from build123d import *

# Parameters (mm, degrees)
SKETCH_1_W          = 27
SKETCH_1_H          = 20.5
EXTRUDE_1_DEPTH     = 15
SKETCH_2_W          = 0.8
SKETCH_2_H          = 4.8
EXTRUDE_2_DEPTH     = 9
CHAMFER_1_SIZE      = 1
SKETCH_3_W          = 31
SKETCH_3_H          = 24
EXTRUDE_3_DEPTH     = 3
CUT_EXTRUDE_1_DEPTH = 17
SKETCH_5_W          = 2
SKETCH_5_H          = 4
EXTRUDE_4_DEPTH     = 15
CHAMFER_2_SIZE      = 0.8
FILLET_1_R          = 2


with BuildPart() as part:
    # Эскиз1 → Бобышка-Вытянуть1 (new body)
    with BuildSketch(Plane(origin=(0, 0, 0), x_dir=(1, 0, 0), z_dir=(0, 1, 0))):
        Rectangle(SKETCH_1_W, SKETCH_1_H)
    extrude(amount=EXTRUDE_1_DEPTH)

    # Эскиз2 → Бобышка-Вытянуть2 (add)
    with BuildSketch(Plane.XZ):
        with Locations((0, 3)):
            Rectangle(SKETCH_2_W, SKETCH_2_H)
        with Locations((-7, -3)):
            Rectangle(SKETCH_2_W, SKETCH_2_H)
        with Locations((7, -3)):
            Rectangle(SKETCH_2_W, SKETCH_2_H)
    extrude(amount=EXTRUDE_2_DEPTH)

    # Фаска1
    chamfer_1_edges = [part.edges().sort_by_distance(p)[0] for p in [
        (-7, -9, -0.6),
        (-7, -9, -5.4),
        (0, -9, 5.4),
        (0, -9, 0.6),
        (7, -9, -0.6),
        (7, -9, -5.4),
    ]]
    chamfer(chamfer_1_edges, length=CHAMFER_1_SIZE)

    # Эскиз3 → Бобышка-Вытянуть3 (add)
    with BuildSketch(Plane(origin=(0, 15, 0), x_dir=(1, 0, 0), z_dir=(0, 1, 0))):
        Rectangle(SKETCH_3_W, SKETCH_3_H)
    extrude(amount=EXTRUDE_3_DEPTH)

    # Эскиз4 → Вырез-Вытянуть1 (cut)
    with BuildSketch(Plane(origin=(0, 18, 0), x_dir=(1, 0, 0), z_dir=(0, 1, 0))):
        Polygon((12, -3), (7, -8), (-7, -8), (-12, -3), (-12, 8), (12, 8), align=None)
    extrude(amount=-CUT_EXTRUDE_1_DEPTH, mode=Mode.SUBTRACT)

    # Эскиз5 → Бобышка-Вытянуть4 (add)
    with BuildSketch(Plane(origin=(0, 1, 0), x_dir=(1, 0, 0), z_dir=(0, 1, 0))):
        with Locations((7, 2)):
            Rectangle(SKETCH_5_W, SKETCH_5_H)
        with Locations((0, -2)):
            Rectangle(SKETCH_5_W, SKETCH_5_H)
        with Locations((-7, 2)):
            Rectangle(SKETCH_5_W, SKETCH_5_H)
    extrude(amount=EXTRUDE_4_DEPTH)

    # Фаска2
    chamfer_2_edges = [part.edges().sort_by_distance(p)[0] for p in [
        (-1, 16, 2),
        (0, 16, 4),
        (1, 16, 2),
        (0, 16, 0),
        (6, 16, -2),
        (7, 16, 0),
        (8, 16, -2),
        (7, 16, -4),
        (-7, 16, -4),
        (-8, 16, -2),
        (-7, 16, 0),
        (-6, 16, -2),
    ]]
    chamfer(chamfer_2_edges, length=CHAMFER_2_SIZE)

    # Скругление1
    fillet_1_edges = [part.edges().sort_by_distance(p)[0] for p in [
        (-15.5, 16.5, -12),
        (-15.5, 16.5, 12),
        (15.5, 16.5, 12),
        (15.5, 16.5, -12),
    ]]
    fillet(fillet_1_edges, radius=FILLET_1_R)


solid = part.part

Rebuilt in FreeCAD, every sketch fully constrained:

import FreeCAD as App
import Part
import Sketcher

V = App.Vector
Q = App.Units.Quantity


def edges_at(feature, points):
    """Names of the edges that pass closest to the given points."""
    edges = feature.Shape.Edges
    near = lambda p: min(range(len(edges)), key=lambda i: edges[i].distToShape(Part.Vertex(*p))[0])
    return sorted({f"Edge{near(p) + 1}" for p in points})


def add_polygon(sketch, points):
    """Adds a closed chain of lines whose ends are joined by coincident constraints."""
    first, n = sketch.GeometryCount, len(points)
    for a, b in zip(points, points[1:] + points[:1]):
        sketch.addGeometry(Part.LineSegment(App.Vector(*a, 0), App.Vector(*b, 0)), False)
    for i in range(n):
        sketch.addConstraint(Sketcher.Constraint("Coincident", first + i, 2, first + (i + 1) % n, 1))

doc = App.newDocument("Part")
body = doc.addObject("PartDesign::Body", "Body")

# Sketch on XZ plane
sketch1 = body.newObject("Sketcher::SketchObject", "Sketch")
sketch1.AttachmentSupport = (doc.getObject("XZ_Plane"), [""])
sketch1.MapMode = "FlatFace"
add_polygon(sketch1, [(-14, -10), (-14, 10), (14, 10), (14, -10)])  # lines 0-3
sketch1.addConstraint([
    Sketcher.Constraint("Vertical", 0),
    Sketcher.Constraint("Horizontal", 1),
    Sketcher.Constraint("Vertical", 2),
    Sketcher.Constraint("Horizontal", 3),
    Sketcher.Constraint("Symmetric", 0, 2, 2, 2, -1, 1),
    Sketcher.Constraint("DistanceX", 1, 1, 1, 2, Q("27 mm")),
    Sketcher.Constraint("DistanceY", 0, 1, 0, 2, Q("20.5 mm")),
])
pad1 = body.newObject("PartDesign::Pad", "Pad")
pad1.Profile = sketch1
pad1.Length = 15
pad1.Reversed = True

# Sketch on XZ plane
sketch2 = body.newObject("Sketcher::SketchObject", "Sketch001")
sketch2.AttachmentSupport = (doc.getObject("XZ_Plane"), [""])
sketch2.MapMode = "FlatFace"
add_polygon(sketch2, [(-0.4, 5.4), (-0.4, 0.6), (0.4, 0.6), (0.4, 5.4)])  # lines 0-3
add_polygon(sketch2, [(-7.4, -0.6), (-7.4, -5.4), (-6.6, -5.4), (-6.6, -0.6)])  # lines 4-7
add_polygon(sketch2, [(6.6, -0.6), (6.6, -5.4), (7.4, -5.4), (7.4, -0.6)])  # lines 8-11
sketch2.addConstraint([
    Sketcher.Constraint("Vertical", 0),
    Sketcher.Constraint("Horizontal", 1),
    Sketcher.Constraint("Vertical", 2),
    Sketcher.Constraint("Horizontal", 3),
    Sketcher.Constraint("Vertical", 4),
    Sketcher.Constraint("Horizontal", 5),
    Sketcher.Constraint("Vertical", 6),
    Sketcher.Constraint("Horizontal", 7),
    Sketcher.Constraint("Vertical", 8),
    Sketcher.Constraint("Horizontal", 9),
    Sketcher.Constraint("Vertical", 10),
    Sketcher.Constraint("Horizontal", 11),
    Sketcher.Constraint("Symmetric", 5, 2, 8, 2, -2),
    Sketcher.Constraint("Symmetric", 7, 2, 10, 2, -2),
    Sketcher.Constraint("Equal", 3, 5),
    Sketcher.Constraint("Equal", 2, 4),
    Sketcher.Constraint("DistanceX", 1, 1, 1, 2, Q("0.8 mm")),
    Sketcher.Constraint("DistanceY", 0, 2, 0, 1, Q("4.8 mm")),
    Sketcher.Constraint("DistanceX", 4, 2, 0, 2, Q("7 mm")),
    Sketcher.Constraint("DistanceY", 4, 2, 0, 2, Q("6 mm")),
    Sketcher.Constraint("DistanceX", 0, 2, 8, 2, Q("7 mm")),
    Sketcher.Constraint("DistanceY", -1, 1, 0, 2, Q("0.6 mm")),
])
pad2 = body.newObject("PartDesign::Pad", "Pad001")
pad2.Profile = sketch2
pad2.Length = 9
doc.recompute()

chamfer = body.newObject("PartDesign::Chamfer", "Chamfer")
chamfer.Base = (pad2, edges_at(pad2, [
    (-7, -9, -0.6),
    (-7, -9, -5.4),
    (0, -9, 5.4),
    (0, -9, 0.6),
    (7, -9, -0.6),
    (7, -9, -5.4),
]))
chamfer.Size = 1

# Sketch on XZ plane
sketch3 = body.newObject("Sketcher::SketchObject", "Sketch002")
sketch3.AttachmentSupport = (doc.getObject("XZ_Plane"), [""])
sketch3.MapMode = "FlatFace"
sketch3.AttachmentOffset = App.Placement(V(0, 0, -15), App.Rotation())
add_polygon(sketch3, [(-16, -12), (-16, 12), (16, 12), (16, -12)])  # lines 0-3
sketch3.addConstraint([
    Sketcher.Constraint("Vertical", 0),
    Sketcher.Constraint("Horizontal", 1),
    Sketcher.Constraint("Vertical", 2),
    Sketcher.Constraint("Horizontal", 3),
    Sketcher.Constraint("Symmetric", 0, 2, 2, 2, -1, 1),
    Sketcher.Constraint("DistanceX", 1, 1, 1, 2, Q("31 mm")),
    Sketcher.Constraint("DistanceY", 0, 1, 0, 2, Q("24 mm")),
])
pad3 = body.newObject("PartDesign::Pad", "Pad002")
pad3.Profile = sketch3
pad3.Length = 3
pad3.Reversed = True

# Sketch on XZ plane
sketch4 = body.newObject("Sketcher::SketchObject", "Sketch003")
sketch4.AttachmentSupport = (doc.getObject("XZ_Plane"), [""])
sketch4.MapMode = "FlatFace"
sketch4.AttachmentOffset = App.Placement(V(0, 0, -18), App.Rotation())
add_polygon(sketch4, [(7, 8), (12, 3), (12, -8), (-12, -8), (-12, 3), (-7, 8)])  # lines 0-5
sketch4.addConstraint([
    Sketcher.Constraint("Vertical", 1),
    Sketcher.Constraint("Horizontal", 2),
    Sketcher.Constraint("Vertical", 3),
    Sketcher.Constraint("Horizontal", 5),
    Sketcher.Constraint("Symmetric", 0, 2, 3, 2, -2),
    Sketcher.Constraint("Perpendicular", 0, 4),
    Sketcher.Constraint("Equal", 0, 4),
    Sketcher.Constraint("DistanceX", 2, 2, 2, 1, Q("24 mm")),
    Sketcher.Constraint("DistanceX", 5, 1, 5, 2, Q("14 mm")),
    Sketcher.Constraint("DistanceY", 1, 2, 1, 1, Q("11 mm")),
    Sketcher.Constraint("DistanceY", -1, 1, 0, 2, Q("3 mm")),
])
pocket1 = body.newObject("PartDesign::Pocket", "Pocket")
pocket1.Profile = sketch4
pocket1.Length = 17
pocket1.Reversed = True

# Sketch on XZ plane
sketch5 = body.newObject("Sketcher::SketchObject", "Sketch004")
sketch5.AttachmentSupport = (doc.getObject("XZ_Plane"), [""])
sketch5.MapMode = "FlatFace"
sketch5.AttachmentOffset = App.Placement(V(0, 0, -1), App.Rotation())
add_polygon(sketch5, [(6, -4), (6, 0), (8, 0), (8, -4)])  # lines 0-3
add_polygon(sketch5, [(-1, 0), (-1, 4), (1, 4), (1, 0)])  # lines 4-7
add_polygon(sketch5, [(-8, -4), (-8, 0), (-6, 0), (-6, -4)])  # lines 8-11
sketch5.addConstraint([
    Sketcher.Constraint("Vertical", 0),
    Sketcher.Constraint("Horizontal", 1),
    Sketcher.Constraint("Vertical", 2),
    Sketcher.Constraint("Horizontal", 3),
    Sketcher.Constraint("Vertical", 4),
    Sketcher.Constraint("Horizontal", 5),
    Sketcher.Constraint("Vertical", 6),
    Sketcher.Constraint("Horizontal", 7),
    Sketcher.Constraint("Vertical", 8),
    Sketcher.Constraint("Horizontal", 9),
    Sketcher.Constraint("Vertical", 10),
    Sketcher.Constraint("Horizontal", 11),
    Sketcher.Constraint("Symmetric", 6, 2, 7, 2, -1, 1),
    Sketcher.Constraint("Symmetric", 1, 2, 8, 2, -1, 1),
    Sketcher.Constraint("Symmetric", 0, 2, 9, 2, -2),
    Sketcher.Constraint("Horizontal", 3, 2, 10, 2),
    Sketcher.Constraint("Equal", 3, 5),
    Sketcher.Constraint("Equal", 2, 4),
    Sketcher.Constraint("DistanceX", 1, 1, 1, 2, Q("2 mm")),
    Sketcher.Constraint("DistanceY", 0, 1, 0, 2, Q("4 mm")),
    Sketcher.Constraint("DistanceX", -1, 1, 0, 2, Q("6 mm")),
])
pad4 = body.newObject("PartDesign::Pad", "Pad003")
pad4.Profile = sketch5
pad4.Length = 15
pad4.Reversed = True
doc.recompute()

chamfer2 = body.newObject("PartDesign::Chamfer", "Chamfer001")
chamfer2.Base = (pad4, edges_at(pad4, [
    (-1, 16, 2),
    (0, 16, 4),
    (1, 16, 2),
    (0, 16, 0),
    (6, 16, -2),
    (7, 16, 0),
    (8, 16, -2),
    (7, 16, -4),
    (-7, 16, -4),
    (-8, 16, -2),
    (-7, 16, 0),
    (-6, 16, -2),
]))
chamfer2.Size = 0.8
doc.recompute()

fillet = body.newObject("PartDesign::Fillet", "Fillet")
fillet.Base = (chamfer2, edges_at(chamfer2, [
    (-15.5, 16.5, -12),
    (-15.5, 16.5, 12),
    (15.5, 16.5, 12),
    (15.5, 16.5, -12),
]))
fillet.Radius = 2

doc.recompute()
